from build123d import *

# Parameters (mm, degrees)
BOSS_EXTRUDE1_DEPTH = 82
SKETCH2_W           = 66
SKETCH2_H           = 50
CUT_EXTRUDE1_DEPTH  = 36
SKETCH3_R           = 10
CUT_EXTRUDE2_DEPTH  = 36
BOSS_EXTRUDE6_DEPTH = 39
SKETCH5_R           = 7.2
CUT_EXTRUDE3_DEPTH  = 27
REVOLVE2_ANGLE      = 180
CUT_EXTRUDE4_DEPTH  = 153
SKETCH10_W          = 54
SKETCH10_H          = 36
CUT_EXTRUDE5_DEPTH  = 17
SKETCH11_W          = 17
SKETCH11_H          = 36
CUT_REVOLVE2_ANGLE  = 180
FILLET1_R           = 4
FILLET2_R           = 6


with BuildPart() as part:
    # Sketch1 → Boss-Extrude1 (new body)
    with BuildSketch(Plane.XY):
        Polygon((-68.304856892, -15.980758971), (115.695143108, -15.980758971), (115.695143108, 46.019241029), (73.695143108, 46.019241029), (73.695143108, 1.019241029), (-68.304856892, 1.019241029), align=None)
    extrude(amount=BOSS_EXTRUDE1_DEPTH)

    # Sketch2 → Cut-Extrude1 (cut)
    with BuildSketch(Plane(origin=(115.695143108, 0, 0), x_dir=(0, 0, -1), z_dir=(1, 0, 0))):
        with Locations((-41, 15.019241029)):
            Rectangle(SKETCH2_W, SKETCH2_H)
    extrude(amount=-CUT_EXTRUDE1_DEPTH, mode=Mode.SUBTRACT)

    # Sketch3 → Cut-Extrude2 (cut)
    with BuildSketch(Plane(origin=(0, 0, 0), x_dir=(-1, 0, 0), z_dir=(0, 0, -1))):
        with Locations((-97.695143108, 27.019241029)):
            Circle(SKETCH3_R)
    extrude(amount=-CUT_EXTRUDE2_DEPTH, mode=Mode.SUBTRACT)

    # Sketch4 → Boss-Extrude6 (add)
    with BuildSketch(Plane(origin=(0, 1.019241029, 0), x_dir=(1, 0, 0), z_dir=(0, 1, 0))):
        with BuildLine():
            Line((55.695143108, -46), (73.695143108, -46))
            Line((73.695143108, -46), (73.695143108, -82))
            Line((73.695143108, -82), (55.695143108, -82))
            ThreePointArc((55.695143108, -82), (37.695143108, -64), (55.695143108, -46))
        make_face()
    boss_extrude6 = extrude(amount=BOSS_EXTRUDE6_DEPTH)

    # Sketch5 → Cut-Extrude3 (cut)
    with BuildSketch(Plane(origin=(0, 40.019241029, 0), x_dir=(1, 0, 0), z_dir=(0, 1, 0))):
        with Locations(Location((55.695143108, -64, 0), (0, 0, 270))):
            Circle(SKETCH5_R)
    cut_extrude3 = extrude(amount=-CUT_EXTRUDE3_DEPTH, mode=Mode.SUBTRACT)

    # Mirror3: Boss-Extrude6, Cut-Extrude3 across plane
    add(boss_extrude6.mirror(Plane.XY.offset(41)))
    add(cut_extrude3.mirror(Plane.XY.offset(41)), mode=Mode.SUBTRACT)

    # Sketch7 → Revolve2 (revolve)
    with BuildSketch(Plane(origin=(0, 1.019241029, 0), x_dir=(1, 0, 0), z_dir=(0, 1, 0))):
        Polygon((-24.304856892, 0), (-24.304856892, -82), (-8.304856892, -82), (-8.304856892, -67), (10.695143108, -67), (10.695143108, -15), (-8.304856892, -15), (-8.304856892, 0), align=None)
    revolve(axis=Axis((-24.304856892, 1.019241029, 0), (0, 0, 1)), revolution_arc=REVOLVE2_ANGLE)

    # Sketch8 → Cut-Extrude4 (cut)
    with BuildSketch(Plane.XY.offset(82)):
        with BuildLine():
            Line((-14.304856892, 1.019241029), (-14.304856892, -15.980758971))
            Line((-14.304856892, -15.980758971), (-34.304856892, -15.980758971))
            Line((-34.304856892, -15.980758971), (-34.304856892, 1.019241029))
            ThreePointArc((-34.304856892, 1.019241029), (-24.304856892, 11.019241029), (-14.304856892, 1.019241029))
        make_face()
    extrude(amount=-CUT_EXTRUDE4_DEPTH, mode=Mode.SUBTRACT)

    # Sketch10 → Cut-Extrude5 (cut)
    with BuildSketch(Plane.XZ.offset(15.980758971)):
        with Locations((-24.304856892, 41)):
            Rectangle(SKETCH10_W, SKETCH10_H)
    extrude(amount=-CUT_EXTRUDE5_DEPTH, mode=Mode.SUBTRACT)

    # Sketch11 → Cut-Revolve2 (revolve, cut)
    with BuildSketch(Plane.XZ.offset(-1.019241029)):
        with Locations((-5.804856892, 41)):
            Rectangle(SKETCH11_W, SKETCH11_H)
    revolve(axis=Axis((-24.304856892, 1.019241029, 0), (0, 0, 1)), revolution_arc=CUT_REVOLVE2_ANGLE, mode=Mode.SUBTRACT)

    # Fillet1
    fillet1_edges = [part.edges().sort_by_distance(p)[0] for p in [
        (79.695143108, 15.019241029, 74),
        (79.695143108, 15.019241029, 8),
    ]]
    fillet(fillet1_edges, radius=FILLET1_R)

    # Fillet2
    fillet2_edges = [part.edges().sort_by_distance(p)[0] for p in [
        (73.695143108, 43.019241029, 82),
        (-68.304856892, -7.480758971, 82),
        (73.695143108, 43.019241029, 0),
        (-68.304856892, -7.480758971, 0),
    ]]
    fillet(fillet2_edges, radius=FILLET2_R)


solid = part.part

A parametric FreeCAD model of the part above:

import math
import FreeCAD as App
import Part
import Sketcher

V = App.Vector


def edges_at(feature, points):
    """Names of the edges that pass closest to the given points."""
    edges = feature.Shape.Edges
    near = lambda p: min(range(len(edges)), key=lambda i: edges[i].distToShape(Part.Vertex(*p))[0])
    return sorted({f"Edge{near(p) + 1}" for p in points})

doc = App.newDocument("Part")
body = doc.addObject("PartDesign::Body", "Body")

# Sketch on XY plane
sketch1 = body.newObject("Sketcher::SketchObject", "Sketch")
sketch1.AttachmentSupport = (doc.getObject("XY_Plane"), [""])
sketch1.MapMode = "FlatFace"
sketch1.addGeometry([
    Part.LineSegment(V(-68, -16, 0), V(116, -16, 0)),  # 0
    Part.LineSegment(V(116, -16, 0), V(116, 46, 0)),  # 1
    Part.LineSegment(V(116, 46, 0), V(74, 46, 0)),  # 2
    Part.LineSegment(V(74, 46, 0), V(74, 1, 0)),  # 3
    Part.LineSegment(V(74, 1, 0), V(-68, 1, 0)),  # 4
    Part.LineSegment(V(-68, 1, 0), V(-68, -16, 0)),  # 5
], False)
sketch1.addConstraint([
    Sketcher.Constraint("Coincident", 0, 2, 1, 1),
    Sketcher.Constraint("Coincident", 1, 2, 2, 1),
    Sketcher.Constraint("Coincident", 2, 2, 3, 1),
    Sketcher.Constraint("Coincident", 3, 2, 4, 1),
    Sketcher.Constraint("Coincident", 4, 2, 5, 1),
    Sketcher.Constraint("Coincident", 5, 2, 0, 1),
    Sketcher.Constraint("Horizontal", 0),
    Sketcher.Constraint("Vertical", 1),
    Sketcher.Constraint("Horizontal", 2),
    Sketcher.Constraint("Vertical", 3),
    Sketcher.Constraint("Horizontal", 4),
    Sketcher.Constraint("Vertical", 5),
    Sketcher.Constraint("DistanceX", 0, 1, 0, 2, 184.0),
    Sketcher.Constraint("DistanceX", 2, 2, 2, 1, 42.0),
    Sketcher.Constraint("DistanceY", 1, 1, 1, 2, 62.0),
    Sketcher.Constraint("DistanceY", 3, 2, 3, 1, 45.0),
    Sketcher.Constraint("DistanceY", 0, 2, -1, 1, 15.980759),
    Sketcher.Constraint("DistanceX", -1, 1, 0, 2, 115.695143),
])
pad1 = body.newObject("PartDesign::Pad", "Pad")
pad1.Profile = sketch1
pad1.Length = 82

# Sketch on YZ plane
sketch2 = body.newObject("Sketcher::SketchObject", "Sketch001")
sketch2.AttachmentSupport = (doc.getObject("YZ_Plane"), [""])
sketch2.MapMode = "FlatFace"
sketch2.AttachmentOffset = App.Placement(V(0, 0, 115.695143), App.Rotation())
sketch2.addGeometry([
    Part.LineSegment(V(40, 74, 0), V(-10, 74, 0)),
    Part.LineSegment(V(-10, 74, 0), V(-10, 8, 0)),
    Part.LineSegment(V(-10, 8, 0), V(40, 8, 0)),
    Part.LineSegment(V(40, 8, 0), V(40, 74, 0)),
], False)
sketch2.addConstraint([
    Sketcher.Constraint("Coincident", 0, 2, 1, 1),
    Sketcher.Constraint("Coincident", 1, 2, 2, 1),
    Sketcher.Constraint("Coincident", 2, 2, 3, 1),
    Sketcher.Constraint("Coincident", 3, 2, 0, 1),
    Sketcher.Constraint("Horizontal", 0),
    Sketcher.Constraint("Vertical", 1),
    Sketcher.Constraint("Horizontal", 2),
    Sketcher.Constraint("Vertical", 3),
    Sketcher.Constraint("DistanceX", 0, 2, 0, 1, 50.0),
    Sketcher.Constraint("DistanceY", 1, 2, 1, 1, 66.0),
    Sketcher.Constraint("DistanceY", -1, 1, 0, 2, 74.0),
    Sketcher.Constraint("DistanceX", 0, 2, -1, 1, 9.980759),
])
pocket1 = body.newObject("PartDesign::Pocket", "Pocket")
pocket1.Profile = sketch2
pocket1.Length = 36

# Sketch on XY plane
sketch3 = body.newObject("Sketcher::SketchObject", "Sketch002")
sketch3.AttachmentSupport = (doc.getObject("XY_Plane"), [""])
sketch3.MapMode = "FlatFace"
sketch3.addGeometry(Part.Circle(V(98, 27, 0), V(0, 0, 1), 10), False)
sketch3.addConstraint([
    Sketcher.Constraint("Diameter", 0, 20.0),
    Sketcher.Constraint("DistanceY", -1, 1, 0, 3, 27.019241),
    Sketcher.Constraint("DistanceX", -1, 1, 0, 3, 97.695143),
])
pocket2 = body.newObject("PartDesign::Pocket", "Pocket001")
pocket2.Profile = sketch3
pocket2.Length = 36
pocket2.Reversed = True

# Sketch on XZ plane
sketch4 = body.newObject("Sketcher::SketchObject", "Sketch003")
sketch4.AttachmentSupport = (doc.getObject("XZ_Plane"), [""])
sketch4.MapMode = "FlatFace"
sketch4.AttachmentOffset = App.Placement(V(0, 0, -1.019241), App.Rotation())
sketch4.addGeometry([
    Part.LineSegment(V(74, 46, 0), V(56, 46, 0)),
    Part.ArcOfCircle(Part.Circle(V(56, 64, 0), V(0, 0, 1), 18), math.radians(90), math.radians(270)),
    Part.LineSegment(V(56, 82, 0), V(74, 82, 0)),
    Part.LineSegment(V(74, 82, 0), V(74, 46, 0)),
], False)
sketch4.addConstraint([
    Sketcher.Constraint("Tangent", 0, 2, 1, 2),
    Sketcher.Constraint("Tangent", 1, 1, 2, 1),
    Sketcher.Constraint("Coincident", 2, 2, 3, 1),
    Sketcher.Constraint("Coincident", 3, 2, 0, 1),
    Sketcher.Constraint("Horizontal", 0),
    Sketcher.Constraint("Horizontal", 2),
    Sketcher.Constraint("Vertical", 3),
    Sketcher.Constraint("Radius", 1, 18.0),
    Sketcher.Constraint("DistanceX", 0, 2, 0, 1, 18.0),
    Sketcher.Constraint("DistanceY", -1, 1, 1, 3, 64.0),
    Sketcher.Constraint("DistanceX", -1, 1, 1, 3, 55.695143),
])
pad2 = body.newObject("PartDesign::Pad", "Pad001")
pad2.Profile = sketch4
pad2.Length = 39
pad2.Reversed = True

# Sketch on XZ plane
sketch5 = body.newObject("Sketcher::SketchObject", "Sketch004")
sketch5.AttachmentSupport = (doc.getObject("XZ_Plane"), [""])
sketch5.MapMode = "FlatFace"
sketch5.AttachmentOffset = App.Placement(V(0, 0, -40.019241), App.Rotation())
sketch5.addGeometry(Part.Circle(V(56, 64, 0), V(0, 0, 1), 7), False)
sketch5.addConstraint([
    Sketcher.Constraint("Diameter", 0, 14.4),
    Sketcher.Constraint("DistanceY", -1, 1, 0, 3, 64.0),
    Sketcher.Constraint("DistanceX", -1, 1, 0, 3, 55.695143),
])
pocket3 = body.newObject("PartDesign::Pocket", "Pocket002")
pocket3.Profile = sketch5
pocket3.Length = 27
pocket3.Reversed = True
doc.recompute()

datumplane = body.newObject("PartDesign::Plane", "DatumPlane")
datumplane.AttachmentSupport = (doc.getObject("XY_Plane"), [""])
datumplane.MapMode = "FlatFace"
datumplane.AttachmentOffset = App.Placement(V(0, 0, 41), App.Rotation())
mirrored = body.newObject("PartDesign::Mirrored", "Mirrored")
mirrored.Originals = [pad2, pocket3]
mirrored.MirrorPlane = (datumplane, [""])
body.Tip = mirrored

# Sketch on XZ plane
sketch6 = body.newObject("Sketcher::SketchObject", "Sketch005")
sketch6.AttachmentSupport = (doc.getObject("XZ_Plane"), [""])
sketch6.MapMode = "FlatFace"
sketch6.AttachmentOffset = App.Placement(V(0, 0, -1.019241), App.Rotation())
sketch6.addGeometry([
    Part.LineSegment(V(-24, 0, 0), V(-24, 82, 0)),  # 0
    Part.LineSegment(V(-24, 82, 0), V(-8, 82, 0)),  # 1
    Part.LineSegment(V(-8, 82, 0), V(-8, 67, 0)),  # 2
    Part.LineSegment(V(-8, 67, 0), V(11, 67, 0)),  # 3
    Part.LineSegment(V(11, 67, 0), V(11, 15, 0)),  # 4
    Part.LineSegment(V(11, 15, 0), V(-8, 15, 0)),  # 5
    Part.LineSegment(V(-8, 15, 0), V(-8, 0, 0)),  # 6
    Part.LineSegment(V(-8, 0, 0), V(-24, 0, 0)),  # 7
], False)
sketch6.addGeometry(Part.LineSegment(V(-24, 0, 0), V(-24, 82, 0)), True)  # axis
sketch6.addConstraint([
    Sketcher.Constraint("Coincident", 0, 2, 1, 1),
    Sketcher.Constraint("Coincident", 1, 2, 2, 1),
    Sketcher.Constraint("Coincident", 2, 2, 3, 1),
    Sketcher.Constraint("Coincident", 3, 2, 4, 1),
    Sketcher.Constraint("Coincident", 4, 2, 5, 1),
    Sketcher.Constraint("Coincident", 5, 2, 6, 1),
    Sketcher.Constraint("Coincident", 6, 2, 7, 1),
    Sketcher.Constraint("Coincident", 7, 2, 0, 1),
    Sketcher.Constraint("Vertical", 0),
    Sketcher.Constraint("Horizontal", 1),
    Sketcher.Constraint("Vertical", 2),
    Sketcher.Constraint("Horizontal", 3),
    Sketcher.Constraint("Vertical", 4),
    Sketcher.Constraint("Horizontal", 5),
    Sketcher.Constraint("Vertical", 6),
    Sketcher.Constraint("Horizontal", 7),
    Sketcher.Constraint("Vertical", 8),
    Sketcher.Constraint("Coincident", 8, 1, 7, 2),
    Sketcher.Constraint("PointOnObject", 6, 2, -1),
    Sketcher.Constraint("Horizontal", 1, 2, 8, 2),
    Sketcher.Constraint("Vertical", 2, 2, 5, 2),
    Sketcher.Constraint("Equal", 2, 6),
    Sketcher.Constraint("DistanceX", 1, 1, 1, 2, 16.0),
    Sketcher.Constraint("DistanceX", 3, 1, 3, 2, 19.0),
    Sketcher.Constraint("DistanceY", 0, 1, 0, 2, 82.0),
    Sketcher.Constraint("DistanceY", 2, 2, 2, 1, 15.0),
    Sketcher.Constraint("DistanceX", 0, 2, -1, 1, 24.304857),
])
revolution = body.newObject("PartDesign::Revolution", "Revolution")
revolution.Profile = sketch6
revolution.ReferenceAxis = (sketch6, ["Axis0"])
revolution.Angle = 180

# Sketch on XY plane
sketch7 = body.newObject("Sketcher::SketchObject", "Sketch006")
sketch7.AttachmentSupport = (doc.getObject("XY_Plane"), [""])
sketch7.MapMode = "FlatFace"
sketch7.AttachmentOffset = App.Placement(V(0, 0, 82), App.Rotation())
sketch7.addGeometry([
    Part.LineSegment(V(-14, -16, 0), V(-14, 1, 0)),
    Part.ArcOfCircle(Part.Circle(V(-24, 1, 0), V(0, 0, 1), 10), math.radians(0), math.radians(180)),
    Part.LineSegment(V(-34, 1, 0), V(-34, -16, 0)),
    Part.LineSegment(V(-34, -16, 0), V(-14, -16, 0)),
], False)
sketch7.addConstraint([
    Sketcher.Constraint("Tangent", 0, 2, 1, 1),
    Sketcher.Constraint("Tangent", 1, 2, 2, 1),
    Sketcher.Constraint("Coincident", 2, 2, 3, 1),
    Sketcher.Constraint("Coincident", 3, 2, 0, 1),
    Sketcher.Constraint("Vertical", 0),
    Sketcher.Constraint("Vertical", 2),
    Sketcher.Constraint("Horizontal", 3),
    Sketcher.Constraint("Radius", 1, 10.0),
    Sketcher.Constraint("DistanceY", 0, 1, 0, 2, 17.0),
    Sketcher.Constraint("DistanceY", -1, 1, 1, 3, 1.019241),
    Sketcher.Constraint("DistanceX", 1, 3, -1, 1, 24.304857),
])
pocket4 = body.newObject("PartDesign::Pocket", "Pocket003")
pocket4.Profile = sketch7
pocket4.Length = 153

# Sketch on XZ plane
sketch8 = body.newObject("Sketcher::SketchObject", "Sketch007")
sketch8.AttachmentSupport = (doc.getObject("XZ_Plane"), [""])
sketch8.MapMode = "FlatFace"
sketch8.AttachmentOffset = App.Placement(V(0, 0, 15.980759), App.Rotation())
sketch8.addGeometry([
    Part.LineSegment(V(-51, 59, 0), V(-51, 23, 0)),
    Part.LineSegment(V(-51, 23, 0), V(3, 23, 0)),
    Part.LineSegment(V(3, 23, 0), V(3, 59, 0)),
    Part.LineSegment(V(3, 59, 0), V(-51, 59, 0)),
], False)
sketch8.addConstraint([
    Sketcher.Constraint("Coincident", 0, 2, 1, 1),
    Sketcher.Constraint("Coincident", 1, 2, 2, 1),
    Sketcher.Constraint("Coincident", 2, 2, 3, 1),
    Sketcher.Constraint("Coincident", 3, 2, 0, 1),
    Sketcher.Constraint("Vertical", 0),
    Sketcher.Constraint("Horizontal", 1),
    Sketcher.Constraint("Vertical", 2),
    Sketcher.Constraint("Horizontal", 3),
    Sketcher.Constraint("DistanceX", 1, 1, 1, 2, 54.0),
    Sketcher.Constraint("DistanceY", 0, 2, 0, 1, 36.0),
    Sketcher.Constraint("DistanceY", -1, 1, 0, 2, 23.0),
    Sketcher.Constraint("DistanceX", 0, 2, -1, 1, 51.304857),
])
pocket5 = body.newObject("PartDesign::Pocket", "Pocket004")
pocket5.Profile = sketch8
pocket5.Length = 17

# Sketch on XZ plane
sketch9 = body.newObject("Sketcher::SketchObject", "Sketch008")
sketch9.AttachmentSupport = (doc.getObject("XZ_Plane"), [""])
sketch9.MapMode = "FlatFace"
sketch9.AttachmentOffset = App.Placement(V(0, 0, -1.019241), App.Rotation())
sketch9.addGeometry([
    Part.LineSegment(V(-14, 59, 0), V(-14, 23, 0)),
    Part.LineSegment(V(-14, 23, 0), V(3, 23, 0)),
    Part.LineSegment(V(3, 23, 0), V(3, 59, 0)),
    Part.LineSegment(V(3, 59, 0), V(-14, 59, 0)),
], False)
sketch9.addGeometry(Part.LineSegment(V(-24, 23, 0), V(-24, 59, 0)), True)  # axis
sketch9.addConstraint([
    Sketcher.Constraint("Coincident", 0, 2, 1, 1),
    Sketcher.Constraint("Coincident", 1, 2, 2, 1),
    Sketcher.Constraint("Coincident", 2, 2, 3, 1),
    Sketcher.Constraint("Coincident", 3, 2, 0, 1),
    Sketcher.Constraint("Vertical", 0),
    Sketcher.Constraint("Horizontal", 1),
    Sketcher.Constraint("Vertical", 2),
    Sketcher.Constraint("Horizontal", 3),
    Sketcher.Constraint("Vertical", 4),
    Sketcher.Constraint("Horizontal", 1, 2, 4, 1),
    Sketcher.Constraint("Horizontal", 3, 2, 4, 2),
    Sketcher.Constraint("DistanceX", 1, 1, 1, 2, 17.0),
    Sketcher.Constraint("DistanceY", 0, 2, 0, 1, 36.0),
    Sketcher.Constraint("DistanceY", -1, 1, 0, 2, 23.0),
    Sketcher.Constraint("DistanceX", 4, 1, 0, 2, 10.0),
    Sketcher.Constraint("DistanceX", 0, 2, -1, 1, 14.304857),
])
groove = body.newObject("PartDesign::Groove", "Groove")
groove.Profile = sketch9
groove.ReferenceAxis = (sketch9, ["Axis0"])
groove.Angle = 180
doc.recompute()

fillet = body.newObject("PartDesign::Fillet", "Fillet")
fillet.Base = (groove, edges_at(groove, [(79.695, 15.019, 74), (79.695, 15.019, 8)]))
fillet.Radius = 4
doc.recompute()

fillet2 = body.newObject("PartDesign::Fillet", "Fillet001")
fillet2.Base = (fillet, edges_at(fillet, [
    (73.695, 43.019, 82),
    (-68.305, -7.481, 82),
    (73.695, 43.019, 0),
    (-68.305, -7.481, 0),
]))
fillet2.Radius = 6

doc.recompute()
